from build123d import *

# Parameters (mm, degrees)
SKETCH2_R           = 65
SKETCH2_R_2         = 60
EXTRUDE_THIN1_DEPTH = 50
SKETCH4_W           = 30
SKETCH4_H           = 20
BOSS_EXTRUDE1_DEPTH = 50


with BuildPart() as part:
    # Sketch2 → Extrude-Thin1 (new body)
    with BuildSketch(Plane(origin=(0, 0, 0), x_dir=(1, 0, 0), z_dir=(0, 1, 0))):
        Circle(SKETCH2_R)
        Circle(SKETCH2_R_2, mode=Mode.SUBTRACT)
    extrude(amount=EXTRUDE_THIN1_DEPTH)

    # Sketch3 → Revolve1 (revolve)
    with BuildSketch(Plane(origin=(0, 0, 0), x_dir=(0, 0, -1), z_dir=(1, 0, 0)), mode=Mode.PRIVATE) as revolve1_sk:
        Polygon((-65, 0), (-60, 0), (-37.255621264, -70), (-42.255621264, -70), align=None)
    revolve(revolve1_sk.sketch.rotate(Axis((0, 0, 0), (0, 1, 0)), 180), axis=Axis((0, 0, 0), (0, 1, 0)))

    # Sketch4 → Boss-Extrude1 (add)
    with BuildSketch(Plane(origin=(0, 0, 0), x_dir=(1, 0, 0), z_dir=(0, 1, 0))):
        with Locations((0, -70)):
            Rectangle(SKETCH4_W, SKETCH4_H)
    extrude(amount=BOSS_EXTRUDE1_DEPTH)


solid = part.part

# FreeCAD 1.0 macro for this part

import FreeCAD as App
import Part
import Sketcher
Q = App.Units.Quantity

doc = App.newDocument("Part")
body = doc.addObject("PartDesign::Body", "Body")

# Sketch on XZ plane
sketch1 = body.newObject("Sketcher::SketchObject", "Sketch")
sketch1.AttachmentSupport = (doc.getObject("XZ_Plane"), [""])
sketch1.MapMode = "FlatFace"
sketch1.addGeometry([
    Part.Circle(App.Vector(0, 0, 0), App.Vector(0, 0, 1), 65),
    Part.Circle(App.Vector(0, 0, 0), App.Vector(0, 0, 1), 60),
], False)
sketch1.addConstraint([
    Sketcher.Constraint("Coincident", 0, 3, -1, 1),
    Sketcher.Constraint("Coincident", 1, 3, -1, 1),
    Sketcher.Constraint("Diameter", 0, Q("130 mm")),
    Sketcher.Constraint("Diameter", 1, Q("120 mm")),
])
pad1 = body.newObject("PartDesign::Pad", "Pad")
pad1.Profile = sketch1
pad1.Length = 50
pad1.Reversed = True

# Sketch on YZ plane
sketch2 = body.newObject("Sketcher::SketchObject", "Sketch001")
sketch2.AttachmentSupport = (doc.getObject("YZ_Plane"), [""])
sketch2.MapMode = "FlatFace"
sketch2.addGeometry([
    Part.LineSegment(App.Vector(0, 60, 0), App.Vector(0, 65, 0)),
    Part.LineSegment(App.Vector(0, 65, 0), App.Vector(-70, 42, 0)),
    Part.LineSegment(App.Vector(-70, 42, 0), App.Vector(-70, 37, 0)),
    Part.LineSegment(App.Vector(-70, 37, 0), App.Vector(0, 60, 0)),
], False)
sketch2.addConstraint([
    Sketcher.Constraint("Coincident", 0, 2, 1, 1),
    Sketcher.Constraint("Coincident", 1, 2, 2, 1),
    Sketcher.Constraint("Coincident", 2, 2, 3, 1),
    Sketcher.Constraint("Coincident", 3, 2, 0, 1),
    Sketcher.Constraint("Vertical", 0),
    Sketcher.Constraint("Vertical", 2),
    Sketcher.Constraint("PointOnObject", 0, 2, -2),
    Sketcher.Constraint("Parallel", 1, 3),
    Sketcher.Constraint("DistanceY", 0, 1, 0, 2, Q("5 mm")),
    Sketcher.Constraint("Angle", 1, Q("-162 deg")),
    Sketcher.Constraint("DistanceY", -1, 1, 0, 2, Q("65 mm")),
    Sketcher.Constraint("DistanceX", 1, 2, -1, 1, Q("70 mm")),
])
revolution = body.newObject("PartDesign::Revolution", "Revolution")
revolution.Profile = sketch2
revolution.ReferenceAxis = (sketch2, ["H_Axis"])
revolution.Angle = 360

# Sketch on XZ plane
sketch3 = body.newObject("Sketcher::SketchObject", "Sketch002")
sketch3.AttachmentSupport = (doc.getObject("XZ_Plane"), [""])
sketch3.MapMode = "FlatFace"
sketch3.addGeometry([
    Part.LineSegment(App.Vector(-15, 60, 0), App.Vector(-15, 80, 0)),
    Part.LineSegment(App.Vector(-15, 80, 0), App.Vector(15, 80, 0)),
    Part.LineSegment(App.Vector(15, 80, 0), App.Vector(15, 60, 0)),
    Part.LineSegment(App.Vector(15, 60, 0), App.Vector(-15, 60, 0)),
], False)
sketch3.addConstraint([
    Sketcher.Constraint("Coincident", 0, 2, 1, 1),
    Sketcher.Constraint("Coincident", 1, 2, 2, 1),
    Sketcher.Constraint("Coincident", 2, 2, 3, 1),
    Sketcher.Constraint("Coincident", 3, 2, 0, 1),
    Sketcher.Constraint("Vertical", 0),
    Sketcher.Constraint("Horizontal", 1),
    Sketcher.Constraint("Vertical", 2),
    Sketcher.Constraint("Horizontal", 3),
    Sketcher.Constraint("DistanceX", 1, 1, 1, 2, Q("30 mm")),
    Sketcher.Constraint("DistanceY", 0, 1, 0, 2, Q("20 mm")),
    Sketcher.Constraint("DistanceX", 0, 2, -1, 1, Q("15 mm")),
    Sketcher.Constraint("DistanceY", -1, 1, 0, 2, Q("80 mm")),
])
pad2 = body.newObject("PartDesign::Pad", "Pad001")
pad2.Profile = sketch3
pad2.Length = 50
pad2.Reversed = True

doc.recompute()
